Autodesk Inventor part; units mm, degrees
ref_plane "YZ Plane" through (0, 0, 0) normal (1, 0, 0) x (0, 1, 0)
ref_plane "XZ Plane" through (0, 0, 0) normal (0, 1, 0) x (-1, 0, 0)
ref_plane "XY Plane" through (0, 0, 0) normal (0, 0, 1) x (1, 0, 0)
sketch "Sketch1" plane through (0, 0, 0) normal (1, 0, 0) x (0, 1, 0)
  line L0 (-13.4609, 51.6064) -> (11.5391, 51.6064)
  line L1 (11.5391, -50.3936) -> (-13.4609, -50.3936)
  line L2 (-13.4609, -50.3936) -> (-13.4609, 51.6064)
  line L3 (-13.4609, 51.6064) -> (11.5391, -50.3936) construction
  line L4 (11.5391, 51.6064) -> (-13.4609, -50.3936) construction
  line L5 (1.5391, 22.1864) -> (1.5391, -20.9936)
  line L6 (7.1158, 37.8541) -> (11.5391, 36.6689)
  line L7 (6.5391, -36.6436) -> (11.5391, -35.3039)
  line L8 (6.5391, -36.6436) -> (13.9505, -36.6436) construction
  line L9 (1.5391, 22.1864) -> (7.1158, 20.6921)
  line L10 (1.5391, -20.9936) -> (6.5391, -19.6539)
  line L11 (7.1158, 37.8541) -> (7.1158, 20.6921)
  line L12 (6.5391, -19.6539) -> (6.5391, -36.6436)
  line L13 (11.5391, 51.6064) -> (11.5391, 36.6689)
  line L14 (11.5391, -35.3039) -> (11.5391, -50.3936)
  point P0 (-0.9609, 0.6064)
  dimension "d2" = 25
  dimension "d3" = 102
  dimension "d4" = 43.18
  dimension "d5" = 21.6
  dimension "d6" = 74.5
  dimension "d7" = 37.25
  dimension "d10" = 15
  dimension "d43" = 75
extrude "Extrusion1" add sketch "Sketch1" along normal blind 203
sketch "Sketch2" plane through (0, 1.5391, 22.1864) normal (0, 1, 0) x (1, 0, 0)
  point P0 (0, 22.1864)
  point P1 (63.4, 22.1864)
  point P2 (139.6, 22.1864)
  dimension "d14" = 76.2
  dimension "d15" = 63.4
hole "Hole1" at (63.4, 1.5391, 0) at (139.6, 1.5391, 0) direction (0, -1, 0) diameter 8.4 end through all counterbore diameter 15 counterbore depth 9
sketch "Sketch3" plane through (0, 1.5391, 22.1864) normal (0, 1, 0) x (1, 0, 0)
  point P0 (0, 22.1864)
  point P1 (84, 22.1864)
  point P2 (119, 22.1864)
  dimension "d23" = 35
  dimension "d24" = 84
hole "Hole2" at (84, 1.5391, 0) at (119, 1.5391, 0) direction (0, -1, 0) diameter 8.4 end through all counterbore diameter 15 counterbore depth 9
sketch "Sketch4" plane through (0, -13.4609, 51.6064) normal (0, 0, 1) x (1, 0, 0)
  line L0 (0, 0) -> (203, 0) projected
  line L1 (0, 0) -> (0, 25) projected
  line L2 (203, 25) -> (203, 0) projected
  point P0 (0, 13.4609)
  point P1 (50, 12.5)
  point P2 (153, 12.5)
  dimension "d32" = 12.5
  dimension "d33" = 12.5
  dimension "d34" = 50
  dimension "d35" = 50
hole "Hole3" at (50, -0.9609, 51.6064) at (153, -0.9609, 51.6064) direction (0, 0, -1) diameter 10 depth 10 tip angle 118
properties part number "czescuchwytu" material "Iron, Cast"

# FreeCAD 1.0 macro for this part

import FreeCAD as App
import Part
import Sketcher
Q = App.Units.Quantity


def add_polygon(sketch, points):
    """Adds a closed chain of lines whose ends are joined by coincident constraints."""
    first, n = sketch.GeometryCount, len(points)
    for a, b in zip(points, points[1:] + points[:1]):
        sketch.addGeometry(Part.LineSegment(App.Vector(*a, 0), App.Vector(*b, 0)), False)
    for i in range(n):
        sketch.addConstraint(Sketcher.Constraint("Coincident", first + i, 2, first + (i + 1) % n, 1))

doc = App.newDocument("Part")
body = doc.addObject("PartDesign::Body", "Body")

sketch1 = body.newObject("Sketcher::SketchObject", "Sketch")
sketch1.AttachmentSupport = (doc.getObject("YZ_Plane"), [""])
sketch1.MapMode = "FlatFace"
add_polygon(sketch1, [(11.5, 51.6), (-13.5, 51.6), (-13.5, -50.4), (11.5, -50.4), (11.5, -35.3), (6.5, -36.6), (6.5, -19.7), (1.5, -21), (1.5, 22.2), (7.1, 20.7), (7.1, 37.9), (11.5, 36.7)])
sketch1.addConstraint(Sketcher.Constraint("Horizontal", 0))
sketch1.addConstraint(Sketcher.Constraint("Vertical", 1))
sketch1.addConstraint(Sketcher.Constraint("Horizontal", 2))
sketch1.addConstraint(Sketcher.Constraint("Vertical", 3))
sketch1.addConstraint(Sketcher.Constraint("Vertical", 5))
sketch1.addConstraint(Sketcher.Constraint("Vertical", 7))
sketch1.addConstraint(Sketcher.Constraint("Vertical", 9))
sketch1.addConstraint(Sketcher.Constraint("Vertical", 11))
sketch1.addConstraint(Sketcher.Constraint("Parallel", 4, 6))
sketch1.addConstraint(Sketcher.Constraint("Parallel", 8, 10))
sketch1.addConstraint(Sketcher.Constraint("Vertical", 3, 2, 10, 2))
sketch1.addConstraint(Sketcher.Constraint("Equal", 4, 6))
sketch1.addConstraint(Sketcher.Constraint("DistanceX", 0, 2, 0, 1, 25.0))
sketch1.addConstraint(Sketcher.Constraint("DistanceY", 1, 2, 1, 1, 102.0))
sketch1.addConstraint(Sketcher.Constraint("Angle", 8, Q("-15.0003 deg")))
sketch1.addConstraint(Sketcher.Constraint("DistanceX", 1, 2, 6, 2, 15.0))
sketch1.addConstraint(Sketcher.Constraint("DistanceY", 7, 1, 7, 2, 43.18))
sketch1.addConstraint(Sketcher.Constraint("Angle", 4, Q("-165.0005 deg")))
sketch1.addConstraint(Sketcher.Constraint("DistanceY", 2, 2, 6, 2, 29.4))
sketch1.addConstraint(Sketcher.Constraint("DistanceY", 9, 1, 9, 2, 17.162))
sketch1.addConstraint(Sketcher.Constraint("DistanceY", 2, 2, 4, 2, 13.75))
sketch1.addConstraint(Sketcher.Constraint("DistanceX", 0, 2, -1, 1, 13.461))
sketch1.addConstraint(Sketcher.Constraint("DistanceY", 3, 2, -1, 1, 35.304))
sketch1.addConstraint(Sketcher.Constraint("DistanceY", -1, 1, 8, 2, 20.692))
pad1 = body.newObject("PartDesign::Pad", "Pad")
pad1.Profile = sketch1
pad1.Length = 203

sketch2 = body.newObject("Sketcher::SketchObject", "Sketch001")
sketch2.AttachmentSupport = (doc.getObject("XZ_Plane"), [""])
sketch2.MapMode = "FlatFace"
sketch2.AttachmentOffset = App.Placement(App.Vector(0, 0, -1.5391), App.Rotation())
sketch2.addGeometry(Part.Circle(App.Vector(63.4, 0, 0), App.Vector(0, 0, 1), 4.2), False)
sketch2.addGeometry(Part.Circle(App.Vector(139.6, 0, 0), App.Vector(0, 0, 1), 4.2), False)
sketch2.addConstraint(Sketcher.Constraint("Equal", 0, 1))
sketch2.addConstraint(Sketcher.Constraint("PointOnObject", 0, 3, -1))
sketch2.addConstraint(Sketcher.Constraint("PointOnObject", 1, 3, -1))
sketch2.addConstraint(Sketcher.Constraint("Diameter", 0, 8.4))
sketch2.addConstraint(Sketcher.Constraint("DistanceX", -1, 1, 0, 3, 63.4))
sketch2.addConstraint(Sketcher.Constraint("DistanceX", -1, 1, 1, 3, 139.6))
doc.recompute()
hole = body.newObject("PartDesign::Hole", "Hole")
hole.Profile = sketch2
hole.ThreadType = "None"
hole.Diameter = 8.4
hole.DepthType = "ThroughAll"
hole.HoleCutType = "Counterbore"
hole.HoleCutDiameter = 15
hole.HoleCutDepth = 9
hole.Reversed = True

sketch3 = body.newObject("Sketcher::SketchObject", "Sketch002")
sketch3.AttachmentSupport = (doc.getObject("XZ_Plane"), [""])
sketch3.MapMode = "FlatFace"
sketch3.AttachmentOffset = App.Placement(App.Vector(0, 0, -1.5391), App.Rotation())
sketch3.addGeometry(Part.Circle(App.Vector(84, 0, 0), App.Vector(0, 0, 1), 4.2), False)
sketch3.addGeometry(Part.Circle(App.Vector(119, 0, 0), App.Vector(0, 0, 1), 4.2), False)
sketch3.addConstraint(Sketcher.Constraint("Equal", 0, 1))
sketch3.addConstraint(Sketcher.Constraint("PointOnObject", 0, 3, -1))
sketch3.addConstraint(Sketcher.Constraint("PointOnObject", 1, 3, -1))
sketch3.addConstraint(Sketcher.Constraint("Diameter", 0, 8.4))
sketch3.addConstraint(Sketcher.Constraint("DistanceX", -1, 1, 0, 3, 84.0))
sketch3.addConstraint(Sketcher.Constraint("DistanceX", -1, 1, 1, 3, 119.0))
doc.recompute()
hole2 = body.newObject("PartDesign::Hole", "Hole001")
hole2.Profile = sketch3
hole2.ThreadType = "None"
hole2.Diameter = 8.4
hole2.DepthType = "ThroughAll"
hole2.HoleCutType = "Counterbore"
hole2.HoleCutDiameter = 15
hole2.HoleCutDepth = 9
hole2.Reversed = True

sketch4 = body.newObject("Sketcher::SketchObject", "Sketch003")
sketch4.AttachmentSupport = (doc.getObject("XY_Plane"), [""])
sketch4.MapMode = "FlatFace"
sketch4.AttachmentOffset = App.Placement(App.Vector(0, 0, 51.6064), App.Rotation())
sketch4.addGeometry(Part.Circle(App.Vector(50, -1, 0), App.Vector(0, 0, 1), 5), False)
sketch4.addGeometry(Part.Circle(App.Vector(153, -1, 0), App.Vector(0, 0, 1), 5), False)
sketch4.addConstraint(Sketcher.Constraint("Equal", 0, 1))
sketch4.addConstraint(Sketcher.Constraint("Horizontal", 0, 3, 1, 3))
sketch4.addConstraint(Sketcher.Constraint("Diameter", 0, 10.0))
sketch4.addConstraint(Sketcher.Constraint("DistanceX", -1, 1, 0, 3, 50.0))
sketch4.addConstraint(Sketcher.Constraint("DistanceX", -1, 1, 1, 3, 153.0))
sketch4.addConstraint(Sketcher.Constraint("DistanceY", 0, 3, -1, 1, 0.961))
doc.recompute()
hole3 = body.newObject("PartDesign::Hole", "Hole002")
hole3.Profile = sketch4
hole3.ThreadType = "None"
hole3.Diameter = 10
hole3.DepthType = "Dimension"
hole3.Depth = 10
hole3.DrillPoint = "Angled"
hole3.DrillPointAngle = 118

doc.recompute()
